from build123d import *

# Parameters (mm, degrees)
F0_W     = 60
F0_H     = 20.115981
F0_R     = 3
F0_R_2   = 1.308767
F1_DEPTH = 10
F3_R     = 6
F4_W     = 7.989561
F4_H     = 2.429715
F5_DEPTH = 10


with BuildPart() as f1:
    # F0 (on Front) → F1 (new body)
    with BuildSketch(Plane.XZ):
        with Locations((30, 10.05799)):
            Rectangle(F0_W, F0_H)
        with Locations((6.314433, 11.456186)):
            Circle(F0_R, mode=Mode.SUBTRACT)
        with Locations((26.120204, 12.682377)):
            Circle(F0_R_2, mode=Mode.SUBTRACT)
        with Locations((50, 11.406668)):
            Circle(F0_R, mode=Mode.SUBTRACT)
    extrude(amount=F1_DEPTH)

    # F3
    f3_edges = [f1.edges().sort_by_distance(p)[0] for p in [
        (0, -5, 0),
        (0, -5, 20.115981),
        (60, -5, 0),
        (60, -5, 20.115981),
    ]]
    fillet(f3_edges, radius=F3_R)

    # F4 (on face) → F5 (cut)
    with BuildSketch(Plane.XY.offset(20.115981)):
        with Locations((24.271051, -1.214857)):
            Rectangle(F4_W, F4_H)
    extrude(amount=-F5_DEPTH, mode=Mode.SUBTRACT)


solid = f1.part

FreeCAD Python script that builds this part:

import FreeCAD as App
import Part
import Sketcher
from FreeCAD import Vector
Q = App.Units.Quantity


def edges_at(feature, points):
    """Names of the edges that pass closest to the given points."""
    edges = feature.Shape.Edges
    near = lambda p: min(range(len(edges)), key=lambda i: edges[i].distToShape(Part.Vertex(*p))[0])
    return sorted({f"Edge{near(p) + 1}" for p in points})


def add_polygon(sketch, points):
    """Adds a closed chain of lines whose ends are joined by coincident constraints."""
    first, n = sketch.GeometryCount, len(points)
    for a, b in zip(points, points[1:] + points[:1]):
        sketch.addGeometry(Part.LineSegment(App.Vector(*a, 0), App.Vector(*b, 0)), False)
    for i in range(n):
        sketch.addConstraint(Sketcher.Constraint("Coincident", first + i, 2, first + (i + 1) % n, 1))

doc = App.newDocument("Part")
body = doc.addObject("PartDesign::Body", "Body")

# Sketch on XZ plane
sketch1 = doc.addObject("Sketcher::SketchObject", "Sketch")
body.addObject(sketch1)
sketch1.AttachmentSupport = (doc.XZ_Plane, [""])
sketch1.MapMode = "FlatFace"
add_polygon(sketch1, [(0, 20.11598), (0, 0), (60, 0), (60, 20.11598)])  # lines 0-3
sketch1.addGeometry(Part.Circle(Vector(50, 11.406668, 0), Vector(0, 0, 1), 3), False)  # 4
sketch1.addGeometry(Part.Circle(Vector(6.314433, 11.456186, 0), Vector(0, 0, 1), 3), False)  # 5
sketch1.addGeometry(Part.Circle(Vector(26.120204, 12.682377, 0), Vector(0, 0, 1), 1.308767), False)  # 6
sketch1.addConstraint([
    Sketcher.Constraint("Vertical", 0),
    Sketcher.Constraint("Horizontal", 1),
    Sketcher.Constraint("Vertical", 2),
    Sketcher.Constraint("Horizontal", 3),
    Sketcher.Constraint("Coincident", 0, 2, -1, 1),
    Sketcher.Constraint("Equal", 4, 5),
    Sketcher.Constraint("Diameter", 4, Q("6 mm")),
    Sketcher.Constraint("DistanceX", 1, 1, 1, 2, Q("60 mm")),
    Sketcher.Constraint("DistanceX", -1, 1, 4, 3, Q("50 mm")),
    Sketcher.Constraint("Diameter", 6, Q("2.617534 mm")),
    Sketcher.Constraint("DistanceY", 0, 2, 0, 1, Q("20.115981 mm")),
    Sketcher.Constraint("DistanceY", 4, 3, 5, 3, Q("0.049518 mm")),
    Sketcher.Constraint("DistanceX", 5, 3, 6, 3, Q("19.805771 mm")),
    Sketcher.Constraint("DistanceY", 5, 3, 6, 3, Q("1.226191 mm")),
    Sketcher.Constraint("DistanceY", 0, 2, 4, 3, Q("11.406669 mm")),
    Sketcher.Constraint("DistanceX", -1, 1, 5, 3, Q("6.314433 mm")),
])
pad1 = doc.addObject("PartDesign::Pad", "Pad")
body.addObject(pad1)
pad1.Profile = sketch1
pad1.Length = 10
doc.recompute()

fillet = doc.addObject("PartDesign::Fillet", "Fillet")
body.addObject(fillet)
fillet.Base = (pad1, edges_at(pad1, [
    (0, -5, 0),
    (0, -5, 20.116),
    (60, -5, 0),
    (60, -5, 20.116),
]))
fillet.Radius = 6

# Sketch on XY plane
sketch2 = doc.addObject("Sketcher::SketchObject", "Sketch001")
body.addObject(sketch2)
sketch2.AttachmentSupport = (doc.XY_Plane, [""])
sketch2.MapMode = "FlatFace"
sketch2.AttachmentOffset = App.Placement(Vector(0, 0, 20.115981), App.Rotation())
add_polygon(sketch2, [(20.27627, 0), (20.27627, -2.429715), (28.265832, -2.429715), (28.265832, 0)])  # lines 0-3
sketch2.addConstraint([
    Sketcher.Constraint("Vertical", 0),
    Sketcher.Constraint("Horizontal", 1),
    Sketcher.Constraint("Vertical", 2),
    Sketcher.Constraint("Horizontal", 3),
    Sketcher.Constraint("PointOnObject", 2, 2, -1),
    Sketcher.Constraint("DistanceX", 1, 1, 1, 2, Q("7.989561 mm")),
    Sketcher.Constraint("DistanceY", 0, 2, 0, 1, Q("2.429715 mm")),
    Sketcher.Constraint("DistanceX", -1, 1, 0, 2, Q("20.27627 mm")),
])
pocket1 = doc.addObject("PartDesign::Pocket", "Pocket")
body.addObject(pocket1)
pocket1.Profile = sketch2
pocket1.Length = 10

doc.recompute()
